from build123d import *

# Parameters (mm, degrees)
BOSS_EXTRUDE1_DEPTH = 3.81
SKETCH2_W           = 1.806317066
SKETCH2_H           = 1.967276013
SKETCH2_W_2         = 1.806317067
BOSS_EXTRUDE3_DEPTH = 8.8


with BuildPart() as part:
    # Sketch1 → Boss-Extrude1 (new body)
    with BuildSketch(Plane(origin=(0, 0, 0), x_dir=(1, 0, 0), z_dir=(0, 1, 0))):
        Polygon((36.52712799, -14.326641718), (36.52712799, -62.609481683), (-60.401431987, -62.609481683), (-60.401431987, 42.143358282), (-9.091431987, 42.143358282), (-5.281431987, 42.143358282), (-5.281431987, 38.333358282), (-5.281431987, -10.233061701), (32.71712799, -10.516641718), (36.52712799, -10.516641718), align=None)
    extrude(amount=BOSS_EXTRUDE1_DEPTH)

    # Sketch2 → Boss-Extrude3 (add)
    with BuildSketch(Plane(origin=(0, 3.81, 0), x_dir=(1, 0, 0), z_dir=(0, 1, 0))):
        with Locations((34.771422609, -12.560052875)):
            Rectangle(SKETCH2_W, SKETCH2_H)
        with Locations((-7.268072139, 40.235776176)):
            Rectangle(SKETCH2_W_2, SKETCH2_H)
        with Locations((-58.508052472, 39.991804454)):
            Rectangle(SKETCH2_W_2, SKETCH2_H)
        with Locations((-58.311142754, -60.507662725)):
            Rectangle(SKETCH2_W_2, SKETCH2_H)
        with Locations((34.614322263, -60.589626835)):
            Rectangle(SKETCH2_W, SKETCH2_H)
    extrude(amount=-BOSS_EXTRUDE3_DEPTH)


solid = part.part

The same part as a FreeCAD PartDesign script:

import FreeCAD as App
import Part
import Sketcher
from FreeCAD import Vector
Q = App.Units.Quantity


def add_polygon(sketch, points):
    """Adds a closed chain of lines whose ends are joined by coincident constraints."""
    first, n = sketch.GeometryCount, len(points)
    for a, b in zip(points, points[1:] + points[:1]):
        sketch.addGeometry(Part.LineSegment(App.Vector(*a, 0), App.Vector(*b, 0)), False)
    for i in range(n):
        sketch.addConstraint(Sketcher.Constraint("Coincident", first + i, 2, first + (i + 1) % n, 1))

doc = App.newDocument("Part")
body = doc.addObject("PartDesign::Body", "Body")

# Sketch on XZ plane
sketch1 = body.newObject("Sketcher::SketchObject", "Sketch")
sketch1.AttachmentSupport = (doc.getObject("XZ_Plane"), [""])
sketch1.MapMode = "FlatFace"
add_polygon(sketch1, [(36.5, 62.6), (36.5, 10.5), (32.7, 10.5), (-5.3, 10.2), (-5.3, -42.1), (-60.4, -42.1), (-60.4, 62.6)])  # lines 0-6
sketch1.addConstraint([
    Sketcher.Constraint("Vertical", 0),
    Sketcher.Constraint("Horizontal", 1),
    Sketcher.Constraint("Vertical", 3),
    Sketcher.Constraint("Horizontal", 4),
    Sketcher.Constraint("Vertical", 5),
    Sketcher.Constraint("Horizontal", 6),
    Sketcher.Constraint("DistanceX", 1, 2, 1, 1, Q("3.81 mm")),
    Sketcher.Constraint("DistanceX", 4, 2, 4, 1, Q("55.12 mm")),
    Sketcher.Constraint("DistanceY", 3, 2, 1, 2, Q("52.66 mm")),
    Sketcher.Constraint("DistanceX", 6, 1, 6, 2, Q("96.92856 mm")),
    Sketcher.Constraint("DistanceY", 0, 2, 0, 1, Q("52.09284 mm")),
    Sketcher.Constraint("DistanceY", 3, 2, 3, 1, Q("52.37642 mm")),
    Sketcher.Constraint("DistanceY", -1, 1, 0, 2, Q("10.516642 mm")),
    Sketcher.Constraint("DistanceX", 2, 2, -1, 1, Q("5.281432 mm")),
])
pad1 = body.newObject("PartDesign::Pad", "Pad")
pad1.Profile = sketch1
pad1.Length = 3.81
pad1.Reversed = True

# Sketch on XZ plane
sketch2 = body.newObject("Sketcher::SketchObject", "Sketch001")
sketch2.AttachmentSupport = (doc.getObject("XZ_Plane"), [""])
sketch2.MapMode = "FlatFace"
sketch2.AttachmentOffset = App.Placement(Vector(0, 0, -3.81), App.Rotation())
add_polygon(sketch2, [(33.9, 11.6), (33.9, 13.5), (35.7, 13.5), (35.7, 11.6)])  # lines 0-3
add_polygon(sketch2, [(-8.2, -41.2), (-8.2, -39.3), (-6.4, -39.3), (-6.4, -41.2)])  # lines 4-7
add_polygon(sketch2, [(-59.4, -41), (-59.4, -39), (-57.6, -39), (-57.6, -41)])  # lines 8-11
add_polygon(sketch2, [(-59.2, 59.5), (-59.2, 61.5), (-57.4, 61.5), (-57.4, 59.5)])  # lines 12-15
add_polygon(sketch2, [(33.7, 59.6), (33.7, 61.6), (35.5, 61.6), (35.5, 59.6)])  # lines 16-19
sketch2.addConstraint([
    Sketcher.Constraint("Vertical", 0),
    Sketcher.Constraint("Horizontal", 1),
    Sketcher.Constraint("Vertical", 2),
    Sketcher.Constraint("Horizontal", 3),
    Sketcher.Constraint("Vertical", 4),
    Sketcher.Constraint("Horizontal", 5),
    Sketcher.Constraint("Vertical", 6),
    Sketcher.Constraint("Horizontal", 7),
    Sketcher.Constraint("Vertical", 8),
    Sketcher.Constraint("Horizontal", 9),
    Sketcher.Constraint("Vertical", 10),
    Sketcher.Constraint("Horizontal", 11),
    Sketcher.Constraint("Vertical", 12),
    Sketcher.Constraint("Horizontal", 13),
    Sketcher.Constraint("Vertical", 14),
    Sketcher.Constraint("Horizontal", 15),
    Sketcher.Constraint("Vertical", 16),
    Sketcher.Constraint("Horizontal", 17),
    Sketcher.Constraint("Vertical", 18),
    Sketcher.Constraint("Horizontal", 19),
    Sketcher.Constraint("Equal", 3, 5),
    Sketcher.Constraint("Equal", 7, 9),
    Sketcher.Constraint("Equal", 11, 13),
    Sketcher.Constraint("Equal", 15, 17),
    Sketcher.Constraint("Equal", 2, 4),
    Sketcher.Constraint("Equal", 6, 8),
    Sketcher.Constraint("Equal", 10, 12),
    Sketcher.Constraint("Equal", 14, 16),
    Sketcher.Constraint("DistanceX", 12, 2, -1, 1, Q("59.214301 mm")),
    Sketcher.Constraint("DistanceY", -1, 1, 12, 2, Q("61.491301 mm")),
    Sketcher.Constraint("DistanceX", 16, 2, 0, 2, Q("0.1571 mm")),
    Sketcher.Constraint("DistanceX", 1, 1, 1, 2, Q("1.806317 mm")),
    Sketcher.Constraint("DistanceY", 0, 1, 0, 2, Q("1.967276 mm")),
    Sketcher.Constraint("DistanceY", -1, 1, 0, 2, Q("13.543691 mm")),
    Sketcher.Constraint("DistanceX", -1, 1, 1, 2, Q("35.674581 mm")),
    Sketcher.Constraint("DistanceX", 4, 2, -1, 1, Q("8.171231 mm")),
    Sketcher.Constraint("DistanceY", 4, 2, -1, 1, Q("39.252138 mm")),
    Sketcher.Constraint("DistanceX", 8, 2, -1, 1, Q("59.411211 mm")),
    Sketcher.Constraint("DistanceY", -1, 1, 18, 2, Q("59.605989 mm")),
    Sketcher.Constraint("DistanceY", 4, 2, 8, 2, Q("0.243972 mm")),
])
pad2 = body.newObject("PartDesign::Pad", "Pad001")
pad2.Profile = sketch2
pad2.Length = 8.8

doc.recompute()
